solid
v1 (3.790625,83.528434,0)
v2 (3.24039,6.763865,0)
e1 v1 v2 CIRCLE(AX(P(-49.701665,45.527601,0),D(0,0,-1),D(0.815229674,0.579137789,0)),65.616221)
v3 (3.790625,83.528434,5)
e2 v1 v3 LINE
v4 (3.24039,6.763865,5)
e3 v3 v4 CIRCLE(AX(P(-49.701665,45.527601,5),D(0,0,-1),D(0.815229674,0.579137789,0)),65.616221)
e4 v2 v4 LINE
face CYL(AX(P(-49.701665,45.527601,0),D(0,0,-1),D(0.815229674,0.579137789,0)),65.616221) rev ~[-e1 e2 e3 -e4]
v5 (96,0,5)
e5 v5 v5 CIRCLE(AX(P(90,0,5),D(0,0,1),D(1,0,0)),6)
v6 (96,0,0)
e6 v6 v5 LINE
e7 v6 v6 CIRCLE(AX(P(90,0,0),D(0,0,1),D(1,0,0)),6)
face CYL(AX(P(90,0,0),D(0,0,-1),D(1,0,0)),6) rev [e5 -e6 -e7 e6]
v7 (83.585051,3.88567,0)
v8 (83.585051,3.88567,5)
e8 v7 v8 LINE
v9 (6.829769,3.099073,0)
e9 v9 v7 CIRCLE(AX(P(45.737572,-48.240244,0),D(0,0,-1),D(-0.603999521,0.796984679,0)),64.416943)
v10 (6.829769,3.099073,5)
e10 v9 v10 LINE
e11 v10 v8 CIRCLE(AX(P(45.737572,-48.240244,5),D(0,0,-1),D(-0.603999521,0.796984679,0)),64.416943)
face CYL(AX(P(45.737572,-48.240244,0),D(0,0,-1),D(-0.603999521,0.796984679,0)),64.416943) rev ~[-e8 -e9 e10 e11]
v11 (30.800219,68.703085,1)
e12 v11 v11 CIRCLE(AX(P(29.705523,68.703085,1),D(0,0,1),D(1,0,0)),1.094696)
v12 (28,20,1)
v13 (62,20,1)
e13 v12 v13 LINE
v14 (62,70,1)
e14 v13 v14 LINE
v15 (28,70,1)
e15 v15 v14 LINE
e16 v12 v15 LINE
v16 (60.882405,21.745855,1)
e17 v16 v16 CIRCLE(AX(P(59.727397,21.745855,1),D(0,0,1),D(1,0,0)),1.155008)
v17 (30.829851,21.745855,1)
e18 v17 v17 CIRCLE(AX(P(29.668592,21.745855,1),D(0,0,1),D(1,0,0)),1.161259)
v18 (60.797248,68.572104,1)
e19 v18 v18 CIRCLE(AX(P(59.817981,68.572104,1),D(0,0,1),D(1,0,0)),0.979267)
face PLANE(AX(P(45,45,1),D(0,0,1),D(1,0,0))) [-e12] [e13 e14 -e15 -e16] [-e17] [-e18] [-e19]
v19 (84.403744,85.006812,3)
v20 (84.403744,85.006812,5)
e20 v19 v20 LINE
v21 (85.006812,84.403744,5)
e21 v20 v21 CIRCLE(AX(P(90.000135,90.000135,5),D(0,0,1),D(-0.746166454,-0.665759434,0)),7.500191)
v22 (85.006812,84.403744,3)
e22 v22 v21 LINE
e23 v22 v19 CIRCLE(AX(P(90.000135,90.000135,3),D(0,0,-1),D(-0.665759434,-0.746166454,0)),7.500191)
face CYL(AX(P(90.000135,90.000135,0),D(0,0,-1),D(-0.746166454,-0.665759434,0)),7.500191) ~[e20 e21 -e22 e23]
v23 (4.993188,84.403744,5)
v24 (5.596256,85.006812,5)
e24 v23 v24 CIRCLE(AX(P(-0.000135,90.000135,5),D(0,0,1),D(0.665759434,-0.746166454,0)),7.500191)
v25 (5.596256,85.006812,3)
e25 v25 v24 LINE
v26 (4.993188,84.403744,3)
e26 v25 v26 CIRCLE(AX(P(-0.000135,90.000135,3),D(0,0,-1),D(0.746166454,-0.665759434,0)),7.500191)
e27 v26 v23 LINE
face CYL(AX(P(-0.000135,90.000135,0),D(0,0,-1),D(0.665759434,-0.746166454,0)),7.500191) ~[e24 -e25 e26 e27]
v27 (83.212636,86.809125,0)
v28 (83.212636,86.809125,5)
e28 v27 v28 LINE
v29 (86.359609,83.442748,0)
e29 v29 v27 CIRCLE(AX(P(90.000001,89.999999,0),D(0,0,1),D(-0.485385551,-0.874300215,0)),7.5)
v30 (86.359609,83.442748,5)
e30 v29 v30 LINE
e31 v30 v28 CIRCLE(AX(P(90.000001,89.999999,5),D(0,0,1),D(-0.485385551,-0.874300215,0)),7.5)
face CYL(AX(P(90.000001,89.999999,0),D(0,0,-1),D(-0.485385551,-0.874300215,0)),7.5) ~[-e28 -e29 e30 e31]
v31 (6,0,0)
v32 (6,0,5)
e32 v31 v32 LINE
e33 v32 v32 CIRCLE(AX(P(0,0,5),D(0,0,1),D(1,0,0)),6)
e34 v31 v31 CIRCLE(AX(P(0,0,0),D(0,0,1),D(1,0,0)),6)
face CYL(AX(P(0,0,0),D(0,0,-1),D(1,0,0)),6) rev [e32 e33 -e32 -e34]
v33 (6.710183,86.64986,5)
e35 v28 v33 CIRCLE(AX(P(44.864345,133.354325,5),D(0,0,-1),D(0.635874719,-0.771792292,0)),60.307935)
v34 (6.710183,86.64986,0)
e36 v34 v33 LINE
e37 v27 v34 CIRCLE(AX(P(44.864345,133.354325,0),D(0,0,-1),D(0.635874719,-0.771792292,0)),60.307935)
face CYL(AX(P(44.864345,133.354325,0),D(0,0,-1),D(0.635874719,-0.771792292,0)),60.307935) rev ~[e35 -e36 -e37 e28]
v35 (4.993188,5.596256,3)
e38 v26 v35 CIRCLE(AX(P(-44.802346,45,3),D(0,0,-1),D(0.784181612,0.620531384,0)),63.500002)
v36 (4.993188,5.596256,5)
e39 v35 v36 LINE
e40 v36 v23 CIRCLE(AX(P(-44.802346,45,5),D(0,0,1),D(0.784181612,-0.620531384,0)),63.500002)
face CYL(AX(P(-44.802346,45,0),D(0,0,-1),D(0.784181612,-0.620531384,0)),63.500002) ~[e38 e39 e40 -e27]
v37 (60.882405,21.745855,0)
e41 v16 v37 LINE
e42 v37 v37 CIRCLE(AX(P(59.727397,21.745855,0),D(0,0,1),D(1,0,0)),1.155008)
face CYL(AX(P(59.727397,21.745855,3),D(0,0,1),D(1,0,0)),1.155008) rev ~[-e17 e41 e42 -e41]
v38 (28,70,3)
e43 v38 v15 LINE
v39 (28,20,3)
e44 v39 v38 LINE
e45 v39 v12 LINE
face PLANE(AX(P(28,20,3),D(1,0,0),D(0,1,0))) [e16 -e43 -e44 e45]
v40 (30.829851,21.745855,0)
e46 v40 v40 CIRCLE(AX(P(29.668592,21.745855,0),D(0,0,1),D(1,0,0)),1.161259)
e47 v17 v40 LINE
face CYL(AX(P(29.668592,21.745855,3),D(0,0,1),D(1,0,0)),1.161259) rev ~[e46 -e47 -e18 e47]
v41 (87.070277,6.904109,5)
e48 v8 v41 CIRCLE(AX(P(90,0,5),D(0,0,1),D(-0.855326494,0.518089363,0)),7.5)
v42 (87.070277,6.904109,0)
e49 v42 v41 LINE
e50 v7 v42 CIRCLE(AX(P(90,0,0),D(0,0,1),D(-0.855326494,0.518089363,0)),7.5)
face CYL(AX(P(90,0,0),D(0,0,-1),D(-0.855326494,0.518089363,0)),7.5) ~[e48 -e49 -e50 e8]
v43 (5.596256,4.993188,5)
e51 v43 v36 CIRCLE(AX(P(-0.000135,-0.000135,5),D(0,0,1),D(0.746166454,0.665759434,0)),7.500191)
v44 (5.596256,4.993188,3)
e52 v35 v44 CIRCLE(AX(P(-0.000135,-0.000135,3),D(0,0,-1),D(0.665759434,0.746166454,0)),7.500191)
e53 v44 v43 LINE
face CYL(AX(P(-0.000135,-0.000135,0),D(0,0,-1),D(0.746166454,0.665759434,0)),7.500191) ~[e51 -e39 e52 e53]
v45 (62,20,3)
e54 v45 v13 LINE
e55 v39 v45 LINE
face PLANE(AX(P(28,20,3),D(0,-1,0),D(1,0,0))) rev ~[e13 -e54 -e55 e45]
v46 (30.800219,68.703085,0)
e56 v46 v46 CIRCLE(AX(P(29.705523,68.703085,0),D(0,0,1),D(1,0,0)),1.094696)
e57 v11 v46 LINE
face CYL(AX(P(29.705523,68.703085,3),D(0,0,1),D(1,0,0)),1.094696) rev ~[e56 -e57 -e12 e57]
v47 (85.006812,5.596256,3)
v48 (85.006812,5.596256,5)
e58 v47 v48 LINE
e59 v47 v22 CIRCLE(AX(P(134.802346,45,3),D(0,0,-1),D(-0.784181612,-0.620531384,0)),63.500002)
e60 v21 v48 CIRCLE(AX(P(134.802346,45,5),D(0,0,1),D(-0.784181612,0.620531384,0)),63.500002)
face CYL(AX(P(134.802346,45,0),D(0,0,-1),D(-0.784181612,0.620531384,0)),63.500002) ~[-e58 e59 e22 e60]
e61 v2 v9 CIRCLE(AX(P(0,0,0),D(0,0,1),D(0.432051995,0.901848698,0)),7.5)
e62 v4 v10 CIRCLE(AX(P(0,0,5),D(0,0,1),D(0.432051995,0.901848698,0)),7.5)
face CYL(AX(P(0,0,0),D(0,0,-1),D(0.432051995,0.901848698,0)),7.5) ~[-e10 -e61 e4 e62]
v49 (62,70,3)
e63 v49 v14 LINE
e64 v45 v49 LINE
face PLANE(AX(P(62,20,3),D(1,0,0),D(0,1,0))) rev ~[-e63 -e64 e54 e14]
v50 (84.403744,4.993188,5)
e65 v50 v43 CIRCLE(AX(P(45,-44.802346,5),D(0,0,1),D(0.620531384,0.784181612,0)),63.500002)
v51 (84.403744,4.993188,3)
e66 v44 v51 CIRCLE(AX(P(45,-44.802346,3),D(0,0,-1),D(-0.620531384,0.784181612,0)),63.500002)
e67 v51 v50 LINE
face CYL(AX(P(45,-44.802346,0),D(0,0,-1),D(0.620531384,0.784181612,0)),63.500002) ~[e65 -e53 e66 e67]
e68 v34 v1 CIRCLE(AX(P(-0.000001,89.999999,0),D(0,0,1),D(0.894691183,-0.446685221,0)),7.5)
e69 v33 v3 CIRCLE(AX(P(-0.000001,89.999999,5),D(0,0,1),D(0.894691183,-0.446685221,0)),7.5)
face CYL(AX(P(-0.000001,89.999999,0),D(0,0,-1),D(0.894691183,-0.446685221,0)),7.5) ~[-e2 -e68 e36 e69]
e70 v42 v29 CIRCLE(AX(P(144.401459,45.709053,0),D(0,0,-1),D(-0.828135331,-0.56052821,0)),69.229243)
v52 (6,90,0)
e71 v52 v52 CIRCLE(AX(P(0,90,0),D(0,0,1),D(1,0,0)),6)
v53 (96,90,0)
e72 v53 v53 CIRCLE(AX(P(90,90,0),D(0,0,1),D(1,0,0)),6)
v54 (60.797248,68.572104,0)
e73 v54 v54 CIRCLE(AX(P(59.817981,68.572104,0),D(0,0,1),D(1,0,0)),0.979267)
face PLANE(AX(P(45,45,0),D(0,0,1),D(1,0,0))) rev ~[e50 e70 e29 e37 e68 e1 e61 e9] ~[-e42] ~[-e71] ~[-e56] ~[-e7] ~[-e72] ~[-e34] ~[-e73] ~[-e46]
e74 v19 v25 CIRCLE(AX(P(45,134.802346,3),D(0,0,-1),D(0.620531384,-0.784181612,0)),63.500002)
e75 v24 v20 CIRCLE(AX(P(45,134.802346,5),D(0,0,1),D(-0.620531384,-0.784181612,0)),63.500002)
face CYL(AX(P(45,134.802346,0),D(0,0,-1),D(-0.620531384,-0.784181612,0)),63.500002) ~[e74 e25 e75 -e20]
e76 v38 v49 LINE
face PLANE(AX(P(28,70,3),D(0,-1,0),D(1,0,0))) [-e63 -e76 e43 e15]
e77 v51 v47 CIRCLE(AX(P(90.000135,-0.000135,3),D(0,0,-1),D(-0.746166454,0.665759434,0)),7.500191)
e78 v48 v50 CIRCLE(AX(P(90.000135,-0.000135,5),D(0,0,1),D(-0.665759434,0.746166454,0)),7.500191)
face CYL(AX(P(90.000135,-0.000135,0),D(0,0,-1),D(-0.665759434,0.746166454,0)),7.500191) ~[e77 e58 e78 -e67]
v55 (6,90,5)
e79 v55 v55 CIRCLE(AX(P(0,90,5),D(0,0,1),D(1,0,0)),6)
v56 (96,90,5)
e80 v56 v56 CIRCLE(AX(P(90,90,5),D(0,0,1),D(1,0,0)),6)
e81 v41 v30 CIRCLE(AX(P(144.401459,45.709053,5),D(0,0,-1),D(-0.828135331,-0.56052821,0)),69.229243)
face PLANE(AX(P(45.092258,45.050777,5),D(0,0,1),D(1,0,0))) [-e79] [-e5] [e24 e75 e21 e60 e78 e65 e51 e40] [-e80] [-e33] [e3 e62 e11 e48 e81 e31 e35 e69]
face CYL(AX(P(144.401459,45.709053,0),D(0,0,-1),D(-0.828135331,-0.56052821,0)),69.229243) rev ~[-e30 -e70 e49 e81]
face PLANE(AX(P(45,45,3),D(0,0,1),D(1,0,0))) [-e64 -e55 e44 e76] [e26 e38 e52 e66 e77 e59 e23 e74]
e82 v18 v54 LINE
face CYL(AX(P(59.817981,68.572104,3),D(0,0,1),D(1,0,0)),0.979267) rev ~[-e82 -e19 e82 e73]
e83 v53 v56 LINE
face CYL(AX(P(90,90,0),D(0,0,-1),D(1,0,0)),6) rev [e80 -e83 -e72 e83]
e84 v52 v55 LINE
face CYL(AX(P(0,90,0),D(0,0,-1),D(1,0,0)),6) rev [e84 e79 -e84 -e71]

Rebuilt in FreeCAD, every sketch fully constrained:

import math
import FreeCAD as App
import Part
import Sketcher

V = App.Vector

doc = App.newDocument("Part")
body = doc.addObject("PartDesign::Body", "Body")

# Sketch on XY plane
sketch1 = body.newObject("Sketcher::SketchObject", "Sketch")
sketch1.AttachmentSupport = (doc.getObject("XY_Plane"), [""])
sketch1.MapMode = "FlatFace"
sketch1.addGeometry([
    Part.ArcOfCircle(Part.Circle(V(44.9, 133.4, 0), V(0, 0, 1), 60.3), math.radians(-129), math.radians(-51)),  # 0
    Part.ArcOfCircle(Part.Circle(V(0, 90, 0), V(0, 0, 1), 7.5), math.radians(-27), math.radians(300)),  # 1
    Part.ArcOfCircle(Part.Circle(V(-49.7, 45.5, 0), V(0, 0, 1), 65.6), math.radians(-36), math.radians(35)),  # 2
    Part.ArcOfCircle(Part.Circle(V(0, 0, 0), V(0, 0, 1), 7.5), math.radians(64), math.radians(384)),  # 3
    Part.ArcOfCircle(Part.Circle(V(45.7, -48.2, 0), V(0, 0, 1), 64.4), math.radians(54), math.radians(127)),  # 4
    Part.ArcOfCircle(Part.Circle(V(90, 0, 0), V(0, 0, 1), 7.5), math.radians(149), math.radians(473)),  # 5
    Part.ArcOfCircle(Part.Circle(V(144.4, 45.7, 0), V(0, 0, 1), 69.2), math.radians(147), math.radians(214)),  # 6
    Part.ArcOfCircle(Part.Circle(V(90, 90, 0), V(0, 0, 1), 7.5), math.radians(-119), math.radians(205)),  # 7
    Part.Circle(V(0, 0, 0), V(0, 0, 1), 6),  # 8
    Part.Circle(V(90, 0, 0), V(0, 0, 1), 6),  # 9
    Part.Circle(V(0, 90, 0), V(0, 0, 1), 6),  # 10
    Part.ArcOfCircle(Part.Circle(V(90, 90, 0), V(0, 0, 1), 7.5), math.radians(-138.26), math.radians(-131.74)),  # 11
    Part.ArcOfCircle(Part.Circle(V(134.8, 45, 0), V(0, 0, 1), 63.5), math.radians(142), math.radians(218)),  # 12
    Part.ArcOfCircle(Part.Circle(V(90, 0, 0), V(0, 0, 1), 7.5), math.radians(131.74), math.radians(138.26)),  # 13
    Part.ArcOfCircle(Part.Circle(V(45, -44.8, 0), V(0, 0, 1), 63.5), math.radians(52), math.radians(128)),  # 14
    Part.ArcOfCircle(Part.Circle(V(0, 0, 0), V(0, 0, 1), 7.5), math.radians(41.74), math.radians(48.26)),  # 15
    Part.ArcOfCircle(Part.Circle(V(-44.8, 45, 0), V(0, 0, 1), 63.5), math.radians(-38), math.radians(38)),  # 16
    Part.ArcOfCircle(Part.Circle(V(0, 90, 0), V(0, 0, 1), 7.5), math.radians(-48.26), math.radians(-41.74)),  # 17
    Part.ArcOfCircle(Part.Circle(V(45, 134.8, 0), V(0, 0, 1), 63.5), math.radians(-128), math.radians(-52)),  # 18
    Part.Circle(V(90, 90, 0), V(0, 0, 1), 6),  # 19
], False)
sketch1.addConstraint([
    Sketcher.Constraint("Coincident", 0, 1, 1, 1),
    Sketcher.Constraint("Coincident", 1, 2, 2, 2),
    Sketcher.Constraint("Coincident", 2, 1, 3, 1),
    Sketcher.Constraint("Coincident", 3, 2, 4, 2),
    Sketcher.Constraint("Coincident", 4, 1, 5, 1),
    Sketcher.Constraint("Coincident", 5, 2, 6, 2),
    Sketcher.Constraint("Coincident", 6, 1, 7, 1),
    Sketcher.Constraint("Coincident", 7, 2, 0, 2),
    Sketcher.Constraint("Coincident", 11, 2, 12, 1),
    Sketcher.Constraint("Coincident", 12, 2, 13, 1),
    Sketcher.Constraint("Coincident", 13, 2, 14, 1),
    Sketcher.Constraint("Coincident", 14, 2, 15, 1),
    Sketcher.Constraint("Coincident", 15, 2, 16, 1),
    Sketcher.Constraint("Coincident", 16, 2, 17, 1),
    Sketcher.Constraint("Coincident", 17, 2, 18, 1),
    Sketcher.Constraint("Coincident", 18, 2, 11, 1),
    Sketcher.Constraint("Coincident", 3, 3, -1, 1),
    Sketcher.Constraint("Coincident", 8, 3, -1, 1),
    Sketcher.Constraint("Coincident", 9, 3, 5, 3),
    Sketcher.Constraint("Coincident", 10, 3, 1, 3),
    Sketcher.Constraint("Coincident", 19, 3, 7, 3),
    Sketcher.Constraint("Equal", 1, 3),
    Sketcher.Constraint("Equal", 3, 5),
    Sketcher.Constraint("Equal", 5, 7),
    Sketcher.Constraint("Equal", 8, 9),
    Sketcher.Constraint("Equal", 9, 10),
    Sketcher.Constraint("Equal", 11, 13),
    Sketcher.Constraint("Equal", 12, 14),
    Sketcher.Constraint("Equal", 13, 15),
    Sketcher.Constraint("Equal", 14, 16),
    Sketcher.Constraint("Equal", 15, 17),
    Sketcher.Constraint("Equal", 16, 18),
    Sketcher.Constraint("Equal", 10, 19),
    Sketcher.Constraint("PointOnObject", 1, 3, -2),
    Sketcher.Constraint("PointOnObject", 5, 3, -1),
    Sketcher.Constraint("Horizontal", 1, 3, 7, 3),
    Sketcher.Constraint("Horizontal", 13, 3, 15, 3),
    Sketcher.Constraint("Horizontal", 12, 3, 16, 3),
    Sketcher.Constraint("Horizontal", 11, 3, 17, 3),
    Sketcher.Constraint("Horizontal", 13, 2, 14, 2),
    Sketcher.Constraint("Horizontal", 12, 2, 15, 2),
    Sketcher.Constraint("Horizontal", 11, 2, 16, 2),
    Sketcher.Constraint("Horizontal", 17, 2, 18, 2),
    Sketcher.Constraint("Vertical", 5, 3, 7, 3),
    Sketcher.Constraint("Vertical", 11, 3, 13, 3),
    Sketcher.Constraint("Vertical", 11, 2, 12, 2),
    Sketcher.Constraint("Vertical", 14, 2, 17, 2),
    Sketcher.Constraint("Diameter", 8, 12.0),
    Sketcher.Constraint("Radius", 1, 7.5),
    Sketcher.Constraint("Radius", 12, 63.500002),
    Sketcher.Constraint("DistanceY", -1, 1, 1, 3, 89.999999),
    Sketcher.Constraint("DistanceX", -1, 1, 5, 3, 90.0),
    Sketcher.Constraint("DistanceY", -1, 1, 12, 3, 45.0),
    Sketcher.Constraint("DistanceX", -1, 1, 14, 3, 45.0),
    Sketcher.Constraint("Radius", 2, 65.616221),
    Sketcher.Constraint("Radius", 11, 7.500191),
    Sketcher.Constraint("Radius", 0, 60.307935),
    Sketcher.Constraint("Radius", 4, 64.416943),
    Sketcher.Constraint("Radius", 6, 69.229243),
    Sketcher.Constraint("DistanceY", 15, 3, 2, 1, 6.764),
    Sketcher.Constraint("DistanceY", -1, 1, 2, 3, 45.527601),
    Sketcher.Constraint("DistanceY", 4, 3, 14, 3, 3.437898),
    Sketcher.Constraint("DistanceY", 1, 2, 17, 3, 6.471701),
    Sketcher.Constraint("DistanceX", 7, 2, 11, 3, 6.787499),
    Sketcher.Constraint("DistanceY", 7, 2, 0, 3, 46.5452),
    Sketcher.Constraint("DistanceX", -1, 1, 4, 3, 45.737572),
    Sketcher.Constraint("DistanceX", -1, 1, 6, 3, 144.401459),
    Sketcher.Constraint("DistanceY", -1, 1, 0, 1, 86.64986),
    Sketcher.Constraint("DistanceX", -1, 1, 3, 2, 6.829769),
    Sketcher.Constraint("DistanceY", -1, 1, 5, 2, 6.904109),
    Sketcher.Constraint("DistanceX", 11, 3, 12, 3, 44.802211),
])
pad1 = body.newObject("PartDesign::Pad", "Pad")
pad1.Profile = sketch1
pad1.Length = 5

# Sketch on XY plane
sketch2 = body.newObject("Sketcher::SketchObject", "Sketch001")
sketch2.AttachmentSupport = (doc.getObject("XY_Plane"), [""])
sketch2.MapMode = "FlatFace"
sketch2.addGeometry([
    Part.ArcOfCircle(Part.Circle(V(90, 0, 0), V(0, 0, 1), 7.5), math.radians(131.74), math.radians(138.26)),  # 0
    Part.ArcOfCircle(Part.Circle(V(134.8, 45, 0), V(0, 0, 1), 63.5), math.radians(142), math.radians(218)),  # 1
    Part.ArcOfCircle(Part.Circle(V(90, 90, 0), V(0, 0, 1), 7.5), math.radians(-138.26), math.radians(-131.74)),  # 2
    Part.ArcOfCircle(Part.Circle(V(45, 134.8, 0), V(0, 0, 1), 63.5), math.radians(-128), math.radians(-52)),  # 3
    Part.ArcOfCircle(Part.Circle(V(0, 90, 0), V(0, 0, 1), 7.5), math.radians(-48.26), math.radians(-41.74)),  # 4
    Part.ArcOfCircle(Part.Circle(V(-44.8, 45, 0), V(0, 0, 1), 63.5), math.radians(-38), math.radians(38)),  # 5
    Part.ArcOfCircle(Part.Circle(V(0, 0, 0), V(0, 0, 1), 7.5), math.radians(41.74), math.radians(48.26)),  # 6
    Part.ArcOfCircle(Part.Circle(V(45, -44.8, 0), V(0, 0, 1), 63.5), math.radians(52), math.radians(128)),  # 7
], False)
sketch2.addConstraint([
    Sketcher.Constraint("Coincident", 0, 1, 1, 2),
    Sketcher.Constraint("Coincident", 1, 1, 2, 2),
    Sketcher.Constraint("Coincident", 2, 1, 3, 2),
    Sketcher.Constraint("Coincident", 3, 1, 4, 2),
    Sketcher.Constraint("Coincident", 4, 1, 5, 2),
    Sketcher.Constraint("Coincident", 5, 1, 6, 2),
    Sketcher.Constraint("Coincident", 6, 1, 7, 2),
    Sketcher.Constraint("Coincident", 7, 1, 0, 2),
    Sketcher.Constraint("Equal", 0, 2),
    Sketcher.Constraint("Equal", 1, 3),
    Sketcher.Constraint("Equal", 2, 4),
    Sketcher.Constraint("Equal", 3, 5),
    Sketcher.Constraint("Equal", 4, 6),
    Sketcher.Constraint("Equal", 5, 7),
    Sketcher.Constraint("Horizontal", 2, 3, 4, 3),
    Sketcher.Constraint("Horizontal", 1, 3, 5, 3),
    Sketcher.Constraint("Horizontal", 0, 3, 6, 3),
    Sketcher.Constraint("Horizontal", 2, 1, 3, 1),
    Sketcher.Constraint("Horizontal", 1, 1, 4, 1),
    Sketcher.Constraint("Horizontal", 0, 1, 5, 1),
    Sketcher.Constraint("Horizontal", 6, 1, 7, 1),
    Sketcher.Constraint("Vertical", 0, 3, 2, 3),
    Sketcher.Constraint("Vertical", 0, 1, 1, 1),
    Sketcher.Constraint("Vertical", 3, 1, 6, 1),
    Sketcher.Constraint("Radius", 1, 63.500002),
    Sketcher.Constraint("DistanceY", -1, 1, 1, 3, 45.0),
    Sketcher.Constraint("DistanceX", -1, 1, 3, 3, 45.0),
    Sketcher.Constraint("Radius", 0, 7.500191),
    Sketcher.Constraint("DistanceY", 7, 3, 0, 1, 50.398602),
    Sketcher.Constraint("DistanceX", 2, 1, 1, 3, 50.398602),
    Sketcher.Constraint("DistanceX", 0, 3, 1, 3, 44.802211),
    Sketcher.Constraint("DistanceY", 0, 3, 2, 3, 90.00027),
])
pad2 = body.newObject("PartDesign::Pad", "Pad001")
pad2.Profile = sketch2
pad2.Length = 3

# Sketch on XY plane
sketch3 = body.newObject("Sketcher::SketchObject", "Sketch002")
sketch3.AttachmentSupport = (doc.getObject("XY_Plane"), [""])
sketch3.MapMode = "FlatFace"
sketch3.AttachmentOffset = App.Placement(V(0, 0, 3), App.Rotation())
sketch3.addGeometry([
    Part.LineSegment(V(28, 70, 0), V(28, 20, 0)),
    Part.LineSegment(V(28, 20, 0), V(62, 20, 0)),
    Part.LineSegment(V(62, 20, 0), V(62, 70, 0)),
    Part.LineSegment(V(62, 70, 0), V(28, 70, 0)),
], False)
sketch3.addConstraint([
    Sketcher.Constraint("Coincident", 0, 2, 1, 1),
    Sketcher.Constraint("Coincident", 1, 2, 2, 1),
    Sketcher.Constraint("Coincident", 2, 2, 3, 1),
    Sketcher.Constraint("Coincident", 3, 2, 0, 1),
    Sketcher.Constraint("Vertical", 0),
    Sketcher.Constraint("Horizontal", 1),
    Sketcher.Constraint("Vertical", 2),
    Sketcher.Constraint("Horizontal", 3),
    Sketcher.Constraint("DistanceX", 1, 1, 1, 2, 34.0),
    Sketcher.Constraint("DistanceY", 0, 2, 0, 1, 50.0),
    Sketcher.Constraint("DistanceX", -1, 1, 0, 2, 28.0),
    Sketcher.Constraint("DistanceY", -1, 1, 0, 2, 20.0),
])
pocket1 = body.newObject("PartDesign::Pocket", "Pocket")
pocket1.Profile = sketch3
pocket1.Length = 2

# Sketch on XY plane
sketch4 = body.newObject("Sketcher::SketchObject", "Sketch003")
sketch4.AttachmentSupport = (doc.getObject("XY_Plane"), [""])
sketch4.MapMode = "FlatFace"
sketch4.AttachmentOffset = App.Placement(V(0, 0, 3), App.Rotation())
sketch4.addGeometry([
    Part.Circle(V(59.7, 21.7, 0), V(0, 0, 1), 1.2),
    Part.Circle(V(29.7, 68.7, 0), V(0, 0, 1), 1.1),
    Part.Circle(V(29.7, 21.7, 0), V(0, 0, 1), 1.2),
    Part.Circle(V(59.8, 68.6, 0), V(0, 0, 1), 1),
], False)
sketch4.addConstraint([
    Sketcher.Constraint("Horizontal", 0, 3, 2, 3),
    Sketcher.Constraint("Diameter", 1, 2.189392),
    Sketcher.Constraint("Diameter", 2, 2.322518),
    Sketcher.Constraint("Diameter", 0, 2.310016),
    Sketcher.Constraint("Diameter", 3, 1.958534),
    Sketcher.Constraint("DistanceX", -1, 1, 3, 3, 59.817981),
    Sketcher.Constraint("DistanceY", 0, 3, 1, 3, 46.95723),
    Sketcher.Constraint("DistanceX", 2, 3, 1, 3, 0.036931),
    Sketcher.Constraint("DistanceX", 1, 3, 3, 3, 30.112458),
    Sketcher.Constraint("DistanceY", 3, 3, 1, 3, 0.130981),
    Sketcher.Constraint("DistanceX", -1, 1, 0, 3, 59.727397),
    Sketcher.Constraint("DistanceY", -1, 1, 0, 3, 21.745855),
])
pocket2 = body.newObject("PartDesign::Pocket", "Pocket001")
pocket2.Profile = sketch4
pocket2.Type = "ThroughAll"

doc.recompute()
